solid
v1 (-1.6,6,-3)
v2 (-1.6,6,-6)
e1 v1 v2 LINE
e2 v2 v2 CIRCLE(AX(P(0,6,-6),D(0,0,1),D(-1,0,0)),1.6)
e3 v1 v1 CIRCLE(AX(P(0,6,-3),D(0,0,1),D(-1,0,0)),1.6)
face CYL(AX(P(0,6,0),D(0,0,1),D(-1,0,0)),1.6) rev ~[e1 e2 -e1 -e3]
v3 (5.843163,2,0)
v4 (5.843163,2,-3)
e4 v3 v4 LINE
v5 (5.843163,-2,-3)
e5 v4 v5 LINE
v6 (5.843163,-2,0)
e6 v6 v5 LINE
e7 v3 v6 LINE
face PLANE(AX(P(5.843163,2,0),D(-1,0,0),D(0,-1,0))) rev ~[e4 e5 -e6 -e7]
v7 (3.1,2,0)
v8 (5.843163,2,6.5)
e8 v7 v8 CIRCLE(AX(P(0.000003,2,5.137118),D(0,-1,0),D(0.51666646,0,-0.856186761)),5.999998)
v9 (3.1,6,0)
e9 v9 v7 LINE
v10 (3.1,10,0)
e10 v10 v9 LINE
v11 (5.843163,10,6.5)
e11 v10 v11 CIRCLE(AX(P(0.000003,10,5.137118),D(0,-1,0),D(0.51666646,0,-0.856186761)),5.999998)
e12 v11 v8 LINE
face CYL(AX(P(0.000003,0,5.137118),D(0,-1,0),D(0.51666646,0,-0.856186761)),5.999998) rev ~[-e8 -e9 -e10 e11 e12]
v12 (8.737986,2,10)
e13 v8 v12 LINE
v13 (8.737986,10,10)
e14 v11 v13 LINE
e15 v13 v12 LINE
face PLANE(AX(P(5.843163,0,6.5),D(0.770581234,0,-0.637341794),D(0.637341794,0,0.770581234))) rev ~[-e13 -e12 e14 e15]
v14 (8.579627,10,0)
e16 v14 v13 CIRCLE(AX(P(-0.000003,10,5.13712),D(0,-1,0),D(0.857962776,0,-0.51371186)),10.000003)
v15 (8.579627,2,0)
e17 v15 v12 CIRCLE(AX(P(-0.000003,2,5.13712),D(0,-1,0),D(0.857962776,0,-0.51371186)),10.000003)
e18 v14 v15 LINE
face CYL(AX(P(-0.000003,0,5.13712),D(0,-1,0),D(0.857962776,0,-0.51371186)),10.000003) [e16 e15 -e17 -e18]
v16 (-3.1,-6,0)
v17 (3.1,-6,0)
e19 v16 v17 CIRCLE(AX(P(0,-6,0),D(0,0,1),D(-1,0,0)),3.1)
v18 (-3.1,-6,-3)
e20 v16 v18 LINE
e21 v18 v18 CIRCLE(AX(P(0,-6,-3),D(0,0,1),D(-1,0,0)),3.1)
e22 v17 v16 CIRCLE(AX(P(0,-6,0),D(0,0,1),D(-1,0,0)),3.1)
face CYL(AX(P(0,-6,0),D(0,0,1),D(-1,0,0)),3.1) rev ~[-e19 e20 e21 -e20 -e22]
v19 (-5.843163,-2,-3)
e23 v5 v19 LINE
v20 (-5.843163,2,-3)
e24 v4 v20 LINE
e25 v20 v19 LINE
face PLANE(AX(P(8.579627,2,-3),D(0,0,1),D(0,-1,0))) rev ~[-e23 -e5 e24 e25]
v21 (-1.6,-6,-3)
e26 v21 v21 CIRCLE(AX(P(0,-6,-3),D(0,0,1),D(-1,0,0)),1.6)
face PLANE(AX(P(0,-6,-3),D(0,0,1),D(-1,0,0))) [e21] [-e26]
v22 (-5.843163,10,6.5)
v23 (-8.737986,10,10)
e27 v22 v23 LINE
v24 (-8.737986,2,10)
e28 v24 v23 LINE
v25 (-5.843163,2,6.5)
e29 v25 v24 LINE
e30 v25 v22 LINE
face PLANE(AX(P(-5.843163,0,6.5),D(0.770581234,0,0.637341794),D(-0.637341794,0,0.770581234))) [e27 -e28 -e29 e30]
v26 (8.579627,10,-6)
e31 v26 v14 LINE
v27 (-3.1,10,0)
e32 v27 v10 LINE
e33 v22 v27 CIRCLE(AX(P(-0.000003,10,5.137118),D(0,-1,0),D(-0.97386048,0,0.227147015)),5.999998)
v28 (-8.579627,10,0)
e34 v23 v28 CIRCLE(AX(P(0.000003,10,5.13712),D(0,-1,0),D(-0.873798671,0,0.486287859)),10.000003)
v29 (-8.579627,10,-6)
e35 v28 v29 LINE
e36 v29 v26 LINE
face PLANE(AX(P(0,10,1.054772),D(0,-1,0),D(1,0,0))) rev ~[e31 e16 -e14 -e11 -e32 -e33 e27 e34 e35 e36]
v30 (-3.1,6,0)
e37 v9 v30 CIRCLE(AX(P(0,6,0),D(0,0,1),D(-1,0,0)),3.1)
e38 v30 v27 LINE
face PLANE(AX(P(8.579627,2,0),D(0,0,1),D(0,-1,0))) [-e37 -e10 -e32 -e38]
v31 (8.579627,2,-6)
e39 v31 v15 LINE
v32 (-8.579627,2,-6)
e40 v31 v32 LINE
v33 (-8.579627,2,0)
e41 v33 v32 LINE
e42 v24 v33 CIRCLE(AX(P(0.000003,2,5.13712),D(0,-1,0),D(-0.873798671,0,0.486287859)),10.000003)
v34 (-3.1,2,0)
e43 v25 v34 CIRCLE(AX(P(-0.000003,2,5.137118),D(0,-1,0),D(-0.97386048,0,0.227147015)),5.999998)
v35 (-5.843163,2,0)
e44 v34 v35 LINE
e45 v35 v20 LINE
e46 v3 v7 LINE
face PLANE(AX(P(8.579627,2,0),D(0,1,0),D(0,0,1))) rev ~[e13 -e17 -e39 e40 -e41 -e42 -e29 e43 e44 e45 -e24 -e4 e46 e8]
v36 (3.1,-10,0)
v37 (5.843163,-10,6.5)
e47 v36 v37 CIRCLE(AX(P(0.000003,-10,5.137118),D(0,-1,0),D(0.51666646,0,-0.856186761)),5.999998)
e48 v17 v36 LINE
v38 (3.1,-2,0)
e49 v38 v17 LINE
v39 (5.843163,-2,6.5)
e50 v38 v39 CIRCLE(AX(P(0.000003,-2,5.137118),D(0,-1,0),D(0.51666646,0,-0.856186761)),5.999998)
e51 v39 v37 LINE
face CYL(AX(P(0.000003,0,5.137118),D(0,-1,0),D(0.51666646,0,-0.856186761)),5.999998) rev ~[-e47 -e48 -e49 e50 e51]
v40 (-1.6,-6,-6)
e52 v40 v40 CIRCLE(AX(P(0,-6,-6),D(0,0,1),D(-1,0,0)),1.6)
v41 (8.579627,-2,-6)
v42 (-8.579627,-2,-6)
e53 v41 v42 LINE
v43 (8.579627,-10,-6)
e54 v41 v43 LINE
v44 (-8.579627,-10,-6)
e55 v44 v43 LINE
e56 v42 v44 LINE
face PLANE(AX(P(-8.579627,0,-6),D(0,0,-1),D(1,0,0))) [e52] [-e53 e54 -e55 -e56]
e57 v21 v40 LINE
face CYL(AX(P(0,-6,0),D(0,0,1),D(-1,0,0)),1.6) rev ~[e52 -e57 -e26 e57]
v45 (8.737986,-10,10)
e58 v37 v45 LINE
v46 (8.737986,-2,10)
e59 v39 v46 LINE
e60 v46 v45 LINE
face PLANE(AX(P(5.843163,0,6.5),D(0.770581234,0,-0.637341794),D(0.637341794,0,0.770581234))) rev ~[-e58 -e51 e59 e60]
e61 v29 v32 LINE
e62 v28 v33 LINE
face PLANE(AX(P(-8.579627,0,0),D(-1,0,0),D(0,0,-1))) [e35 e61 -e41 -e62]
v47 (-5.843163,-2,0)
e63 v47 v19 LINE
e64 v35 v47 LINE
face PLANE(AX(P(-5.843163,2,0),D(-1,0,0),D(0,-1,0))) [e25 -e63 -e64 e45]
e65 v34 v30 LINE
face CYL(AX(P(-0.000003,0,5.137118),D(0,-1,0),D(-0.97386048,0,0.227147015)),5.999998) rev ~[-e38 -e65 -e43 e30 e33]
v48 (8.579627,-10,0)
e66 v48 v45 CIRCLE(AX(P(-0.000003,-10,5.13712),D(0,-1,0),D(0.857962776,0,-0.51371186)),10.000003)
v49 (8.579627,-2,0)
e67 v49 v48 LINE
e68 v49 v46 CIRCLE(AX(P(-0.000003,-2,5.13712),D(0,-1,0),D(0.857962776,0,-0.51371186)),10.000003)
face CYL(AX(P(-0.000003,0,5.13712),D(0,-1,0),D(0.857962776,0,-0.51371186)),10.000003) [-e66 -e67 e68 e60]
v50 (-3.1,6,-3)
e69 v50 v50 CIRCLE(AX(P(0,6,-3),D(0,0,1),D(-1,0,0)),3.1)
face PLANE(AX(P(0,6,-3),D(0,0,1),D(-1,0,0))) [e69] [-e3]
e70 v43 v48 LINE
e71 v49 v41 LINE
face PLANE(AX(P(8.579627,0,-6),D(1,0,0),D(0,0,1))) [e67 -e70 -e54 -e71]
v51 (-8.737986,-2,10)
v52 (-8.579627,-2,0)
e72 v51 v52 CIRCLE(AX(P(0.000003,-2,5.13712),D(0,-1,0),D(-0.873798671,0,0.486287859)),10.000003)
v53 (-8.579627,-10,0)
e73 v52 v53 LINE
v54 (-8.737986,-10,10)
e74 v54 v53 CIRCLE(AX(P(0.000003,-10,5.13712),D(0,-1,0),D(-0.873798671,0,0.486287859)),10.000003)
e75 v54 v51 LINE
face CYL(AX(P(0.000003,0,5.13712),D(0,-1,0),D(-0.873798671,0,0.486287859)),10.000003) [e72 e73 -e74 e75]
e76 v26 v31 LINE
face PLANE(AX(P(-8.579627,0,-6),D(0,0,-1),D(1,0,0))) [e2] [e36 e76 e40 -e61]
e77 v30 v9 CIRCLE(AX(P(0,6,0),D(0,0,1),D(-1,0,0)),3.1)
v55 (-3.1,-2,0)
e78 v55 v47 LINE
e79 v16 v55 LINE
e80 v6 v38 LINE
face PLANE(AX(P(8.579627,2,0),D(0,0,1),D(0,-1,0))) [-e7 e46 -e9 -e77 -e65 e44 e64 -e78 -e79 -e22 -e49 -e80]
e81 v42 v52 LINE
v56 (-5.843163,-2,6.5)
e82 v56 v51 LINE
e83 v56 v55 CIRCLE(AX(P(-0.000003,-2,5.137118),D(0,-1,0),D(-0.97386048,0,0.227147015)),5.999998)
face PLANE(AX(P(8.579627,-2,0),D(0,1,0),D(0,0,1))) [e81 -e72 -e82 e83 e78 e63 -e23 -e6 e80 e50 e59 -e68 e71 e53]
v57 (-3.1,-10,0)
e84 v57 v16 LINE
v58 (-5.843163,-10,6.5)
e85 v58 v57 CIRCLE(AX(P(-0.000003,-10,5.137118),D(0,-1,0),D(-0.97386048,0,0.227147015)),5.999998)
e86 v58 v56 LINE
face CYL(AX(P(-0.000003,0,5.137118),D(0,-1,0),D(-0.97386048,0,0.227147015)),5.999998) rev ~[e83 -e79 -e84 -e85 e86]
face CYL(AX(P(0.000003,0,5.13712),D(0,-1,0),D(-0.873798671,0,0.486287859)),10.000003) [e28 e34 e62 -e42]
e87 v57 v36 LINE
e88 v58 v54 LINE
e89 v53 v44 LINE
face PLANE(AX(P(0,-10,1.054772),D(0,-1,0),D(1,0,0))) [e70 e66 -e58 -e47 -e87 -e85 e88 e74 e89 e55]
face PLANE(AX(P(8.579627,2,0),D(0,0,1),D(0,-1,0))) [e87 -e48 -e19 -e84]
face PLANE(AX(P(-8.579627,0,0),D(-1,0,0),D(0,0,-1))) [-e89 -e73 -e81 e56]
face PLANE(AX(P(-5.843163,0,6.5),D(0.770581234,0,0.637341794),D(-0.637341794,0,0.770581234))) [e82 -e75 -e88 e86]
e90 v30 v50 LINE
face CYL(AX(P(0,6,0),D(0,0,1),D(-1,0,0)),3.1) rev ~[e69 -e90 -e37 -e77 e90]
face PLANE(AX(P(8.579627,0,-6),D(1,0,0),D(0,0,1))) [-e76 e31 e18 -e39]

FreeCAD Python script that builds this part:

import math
import FreeCAD as App
import Part
import Sketcher
from FreeCAD import Vector
Q = App.Units.Quantity


def add_polygon(sketch, points):
    """Adds a closed chain of lines whose ends are joined by coincident constraints."""
    first, n = sketch.GeometryCount, len(points)
    for a, b in zip(points, points[1:] + points[:1]):
        sketch.addGeometry(Part.LineSegment(App.Vector(*a, 0), App.Vector(*b, 0)), False)
    for i in range(n):
        sketch.addConstraint(Sketcher.Constraint("Coincident", first + i, 2, first + (i + 1) % n, 1))

doc = App.newDocument("Part")
params = doc.addObject("Spreadsheet::Sheet", "Params")
for row, (alias, value) in enumerate([
    ("sketch1_height", "6 mm"),
    ("sketch1_width", "6.2 mm"),
    ("pad1_length", "20 mm"),
    ("sketch2_width", "4 mm"),
    ("sketch2_height", "10 mm"),
    ("sketch2_height2", "3 mm"),
    ("sketch3_diameter", "3.2 mm"),
    ("sketch4_diameter", "6.2 mm"),
    ("pocket3_length", "3 mm"),
    ("sketch5_height", "4 mm"),
    ("pocket4_length", "5 mm"),
], start=1):
    params.set(f"A{row}", alias)
    params.set(f"B{row}", "=" + value)
    params.setAlias(f"B{row}", alias)

body = doc.addObject("PartDesign::Body", "Body")

# Sketch on XZ plane
sketch1 = body.newObject("Sketcher::SketchObject", "Sketch")
sketch1.AttachmentSupport = (doc.getObject("XZ_Plane"), [""])
sketch1.MapMode = "FlatFace"
sketch1.addGeometry(Part.ArcOfCircle(Part.Circle(Vector(0.000003, 5.13712, 0), Vector(0, 0, 1), 10.000003), math.radians(150.903116), math.radians(210.911393)), False)
sketch1.addGeometry(Part.LineSegment(Vector(-8.579627, 0, 0), Vector(-8.579627, -6, 0)), False)
sketch1.addGeometry(Part.LineSegment(Vector(-8.579627, -6, 0), Vector(8.579627, -6, 0)), False)
sketch1.addGeometry(Part.LineSegment(Vector(8.579627, -6, 0), Vector(8.579627, 0, 0)), False)
sketch1.addGeometry(Part.ArcOfCircle(Part.Circle(Vector(-0.000003, 5.13712, 0), Vector(0, 0, 1), 10.000003), math.radians(-30.911393), math.radians(29.096884)), False)
sketch1.addGeometry(Part.LineSegment(Vector(8.737986, 10, 0), Vector(5.843163, 6.5, 0)), False)
sketch1.addGeometry(Part.ArcOfCircle(Part.Circle(Vector(0.000003, 5.137118, 0), Vector(0, 0, 1), 5.999998), math.radians(-58.891091), math.radians(13.129163)), False)
sketch1.addGeometry(Part.LineSegment(Vector(3.1, 0, 0), Vector(-3.1, 0, 0)), False)
sketch1.addGeometry(Part.ArcOfCircle(Part.Circle(Vector(-0.000003, 5.137118, 0), Vector(0, 0, 1), 5.999998), math.radians(166.870837), math.radians(238.891091)), False)
sketch1.addGeometry(Part.LineSegment(Vector(-5.843163, 6.5, 0), Vector(-8.737986, 10, 0)), False)
sketch1.addConstraint(Sketcher.Constraint("Coincident", 0, 2, 1, 1))
sketch1.addConstraint(Sketcher.Constraint("Coincident", 1, 2, 2, 1))
sketch1.addConstraint(Sketcher.Constraint("Coincident", 2, 2, 3, 1))
sketch1.addConstraint(Sketcher.Constraint("Coincident", 3, 2, 4, 1))
sketch1.addConstraint(Sketcher.Constraint("Coincident", 4, 2, 5, 1))
sketch1.addConstraint(Sketcher.Constraint("Coincident", 5, 2, 6, 2))
sketch1.addConstraint(Sketcher.Constraint("Coincident", 6, 1, 7, 1))
sketch1.addConstraint(Sketcher.Constraint("Coincident", 7, 2, 8, 2))
sketch1.addConstraint(Sketcher.Constraint("Coincident", 8, 1, 9, 1))
sketch1.addConstraint(Sketcher.Constraint("Coincident", 9, 2, 0, 1))
sketch1.addConstraint(Sketcher.Constraint("Vertical", 1))
sketch1.addConstraint(Sketcher.Constraint("Horizontal", 2))
sketch1.addConstraint(Sketcher.Constraint("Vertical", 3))
sketch1.addConstraint(Sketcher.Constraint("Horizontal", 7))
sketch1.addConstraint(Sketcher.Constraint("Coincident", 4, 3, 0, 3))
sketch1.addConstraint(Sketcher.Constraint("Coincident", 6, 3, 0, 3))
sketch1.addConstraint(Sketcher.Constraint("Coincident", 8, 3, 0, 3))
sketch1.addConstraint(Sketcher.Constraint("Equal", 0, 4))
sketch1.addConstraint(Sketcher.Constraint("Equal", 6, 8))
sketch1.addConstraint(Sketcher.Constraint("Symmetric", 0, 2, 3, 2, -1, 1))
sketch1.addConstraint(Sketcher.Constraint("Symmetric", 6, 1, 7, 2, -1, 1))
sketch1.addConstraint(Sketcher.Constraint("Horizontal", 5, 2, 8, 1))
sketch1.addConstraint(Sketcher.Constraint("Horizontal", 4, 2, 9, 2))
sketch1.addConstraint(Sketcher.Constraint("DistanceY", 1, 2, 1, 1, Q("6 mm")))
sketch1.addConstraint(Sketcher.Constraint("DistanceX", 7, 2, 7, 1, Q("6.2 mm")))
sketch1.addConstraint(Sketcher.Constraint("DistanceY", -1, 1, 4, 2, Q("10 mm")))
sketch1.addConstraint(Sketcher.Constraint("DistanceY", -1, 1, 5, 2, Q("6.5 mm")))
sketch1.addConstraint(Sketcher.Constraint("Radius", 0, Q("10.000003 mm")))
sketch1.addConstraint(Sketcher.Constraint("Radius", 6, Q("5.999998 mm")))
sketch1.setExpression("Constraints[23]", "Params.sketch1_height")
sketch1.setExpression("Constraints[24]", "Params.sketch1_width")
pad1 = body.newObject("PartDesign::Pad", "Pad")
pad1.Profile = sketch1
pad1.setExpression("Length", "Params.pad1_length")
pad1.Midplane = True

# Sketch on YZ plane
sketch2 = body.newObject("Sketcher::SketchObject", "Sketch001")
sketch2.AttachmentSupport = (doc.getObject("YZ_Plane"), [""])
sketch2.MapMode = "FlatFace"
sketch2.AttachmentOffset = App.Placement(Vector(0, 0, 8.579627), App.Rotation())
add_polygon(sketch2, [(-2, 0), (2, 0), (2, 10), (-2, 10)])  # lines 0-3
add_polygon(sketch2, [(-2, -6), (2, -6), (2, -3), (-2, -3)])  # lines 4-7
sketch2.addConstraint(Sketcher.Constraint("Horizontal", 0))
sketch2.addConstraint(Sketcher.Constraint("Vertical", 1))
sketch2.addConstraint(Sketcher.Constraint("Horizontal", 2))
sketch2.addConstraint(Sketcher.Constraint("Vertical", 3))
sketch2.addConstraint(Sketcher.Constraint("Horizontal", 4))
sketch2.addConstraint(Sketcher.Constraint("Vertical", 5))
sketch2.addConstraint(Sketcher.Constraint("Horizontal", 6))
sketch2.addConstraint(Sketcher.Constraint("Vertical", 7))
sketch2.addConstraint(Sketcher.Constraint("Symmetric", 0, 2, 3, 2, -1, 1))
sketch2.addConstraint(Sketcher.Constraint("Vertical", 1, 2, 4, 2))
sketch2.addConstraint(Sketcher.Constraint("Vertical", 3, 2, 6, 2))
sketch2.addConstraint(Sketcher.Constraint("DistanceX", 0, 1, 0, 2, Q("4 mm")))
sketch2.addConstraint(Sketcher.Constraint("DistanceY", 1, 1, 1, 2, Q("10 mm")))
sketch2.addConstraint(Sketcher.Constraint("DistanceY", 5, 1, 5, 2, Q("3 mm")))
sketch2.addConstraint(Sketcher.Constraint("DistanceY", 4, 2, -1, 1, Q("6 mm")))
sketch2.setExpression("Constraints[19]", "Params.sketch2_width")
sketch2.setExpression("Constraints[20]", "Params.sketch2_height")
sketch2.setExpression("Constraints[21]", "Params.sketch2_height2")
pocket1 = body.newObject("PartDesign::Pocket", "Pocket")
pocket1.Profile = sketch2
pocket1.Type = "ThroughAll"
pocket1.Midplane = True

# Sketch on XY plane
sketch3 = body.newObject("Sketcher::SketchObject", "Sketch002")
sketch3.AttachmentSupport = (doc.getObject("XY_Plane"), [""])
sketch3.MapMode = "FlatFace"
sketch3.addGeometry(Part.Circle(Vector(0, -6, 0), Vector(0, 0, 1), 1.6), False)
sketch3.addGeometry(Part.Circle(Vector(0, 6, 0), Vector(0, 0, 1), 1.6), False)
sketch3.addConstraint(Sketcher.Constraint("Equal", 0, 1))
sketch3.addConstraint(Sketcher.Constraint("Symmetric", 0, 3, 1, 3, -1, 1))
sketch3.addConstraint(Sketcher.Constraint("PointOnObject", 0, 3, -2))
sketch3.addConstraint(Sketcher.Constraint("Diameter", 0, Q("3.2 mm")))
sketch3.addConstraint(Sketcher.Constraint("DistanceY", 0, 3, -1, 1, Q("6 mm")))
sketch3.setExpression("Constraints[3]", "Params.sketch3_diameter")
pocket2 = body.newObject("PartDesign::Pocket", "Pocket001")
pocket2.Profile = sketch3
pocket2.Type = "ThroughAll"

# Sketch on XY plane
sketch4 = body.newObject("Sketcher::SketchObject", "Sketch003")
sketch4.AttachmentSupport = (doc.getObject("XY_Plane"), [""])
sketch4.MapMode = "FlatFace"
sketch4.addGeometry(Part.Circle(Vector(0, -6, 0), Vector(0, 0, 1), 3.1), False)
sketch4.addGeometry(Part.Circle(Vector(0, 6, 0), Vector(0, 0, 1), 3.1), False)
sketch4.addConstraint(Sketcher.Constraint("Equal", 0, 1))
sketch4.addConstraint(Sketcher.Constraint("Symmetric", 0, 3, 1, 3, -1, 1))
sketch4.addConstraint(Sketcher.Constraint("PointOnObject", 0, 3, -2))
sketch4.addConstraint(Sketcher.Constraint("Diameter", 0, Q("6.2 mm")))
sketch4.addConstraint(Sketcher.Constraint("DistanceY", 0, 3, -1, 1, Q("6 mm")))
sketch4.setExpression("Constraints[3]", "Params.sketch4_diameter")
pocket3 = body.newObject("PartDesign::Pocket", "Pocket002")
pocket3.Profile = sketch4
pocket3.setExpression("Length", "Params.pocket3_length")

# Sketch on XY plane
sketch5 = body.newObject("Sketcher::SketchObject", "Sketch004")
sketch5.AttachmentSupport = (doc.getObject("XY_Plane"), [""])
sketch5.MapMode = "FlatFace"
add_polygon(sketch5, [(8.579627, -2), (8.579627, 2), (5.843163, 2), (5.843163, -2)])  # lines 0-3
add_polygon(sketch5, [(-5.843163, -2), (-5.843163, 2), (-8.579627, 2), (-8.579627, -2)])  # lines 4-7
sketch5.addConstraint(Sketcher.Constraint("Vertical", 0))
sketch5.addConstraint(Sketcher.Constraint("Horizontal", 1))
sketch5.addConstraint(Sketcher.Constraint("Vertical", 2))
sketch5.addConstraint(Sketcher.Constraint("Horizontal", 3))
sketch5.addConstraint(Sketcher.Constraint("Vertical", 4))
sketch5.addConstraint(Sketcher.Constraint("Horizontal", 5))
sketch5.addConstraint(Sketcher.Constraint("Vertical", 6))
sketch5.addConstraint(Sketcher.Constraint("Horizontal", 7))
sketch5.addConstraint(Sketcher.Constraint("Symmetric", 2, 2, 4, 2, -1, 1))
sketch5.addConstraint(Sketcher.Constraint("Symmetric", 0, 2, 6, 2, -1, 1))
sketch5.addConstraint(Sketcher.Constraint("Horizontal", 1, 2, 4, 2))
sketch5.addConstraint(Sketcher.Constraint("DistanceY", 0, 1, 0, 2, Q("4 mm")))
sketch5.addConstraint(Sketcher.Constraint("DistanceX", 1, 2, 1, 1, Q("2.736464 mm")))
sketch5.addConstraint(Sketcher.Constraint("DistanceX", 4, 2, 0, 2, Q("14.42279 mm")))
sketch5.setExpression("Constraints[19]", "Params.sketch5_height")
pocket4 = body.newObject("PartDesign::Pocket", "Pocket003")
pocket4.Profile = sketch5
pocket4.setExpression("Length", "Params.pocket4_length")

doc.recompute()
